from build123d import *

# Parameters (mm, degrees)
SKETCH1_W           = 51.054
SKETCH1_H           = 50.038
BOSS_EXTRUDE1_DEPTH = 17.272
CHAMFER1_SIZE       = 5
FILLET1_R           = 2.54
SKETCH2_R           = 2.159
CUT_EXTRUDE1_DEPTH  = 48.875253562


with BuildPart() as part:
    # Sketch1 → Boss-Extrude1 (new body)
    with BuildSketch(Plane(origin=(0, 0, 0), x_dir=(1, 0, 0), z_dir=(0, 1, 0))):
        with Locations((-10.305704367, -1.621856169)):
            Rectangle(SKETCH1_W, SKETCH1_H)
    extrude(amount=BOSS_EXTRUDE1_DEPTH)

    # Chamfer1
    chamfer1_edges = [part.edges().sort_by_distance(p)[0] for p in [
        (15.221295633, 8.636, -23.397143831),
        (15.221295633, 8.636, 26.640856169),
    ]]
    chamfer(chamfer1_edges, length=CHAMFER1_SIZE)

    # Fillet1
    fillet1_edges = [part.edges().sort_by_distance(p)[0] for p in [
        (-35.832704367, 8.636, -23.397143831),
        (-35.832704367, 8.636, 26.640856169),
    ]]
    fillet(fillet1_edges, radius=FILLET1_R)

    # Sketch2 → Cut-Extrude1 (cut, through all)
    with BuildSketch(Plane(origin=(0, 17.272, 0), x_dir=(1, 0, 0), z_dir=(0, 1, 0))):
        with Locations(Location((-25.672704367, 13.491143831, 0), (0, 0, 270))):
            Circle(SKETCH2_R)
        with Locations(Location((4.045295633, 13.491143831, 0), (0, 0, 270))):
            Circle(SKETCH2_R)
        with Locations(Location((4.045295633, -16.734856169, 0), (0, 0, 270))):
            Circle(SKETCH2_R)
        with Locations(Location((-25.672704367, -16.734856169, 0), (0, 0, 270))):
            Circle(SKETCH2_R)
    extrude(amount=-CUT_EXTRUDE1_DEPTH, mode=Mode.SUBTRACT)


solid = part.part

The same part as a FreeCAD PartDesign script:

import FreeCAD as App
import Part
import Sketcher

V = App.Vector
Q = App.Units.Quantity


def edges_at(feature, points):
    """Names of the edges that pass closest to the given points."""
    edges = feature.Shape.Edges
    near = lambda p: min(range(len(edges)), key=lambda i: edges[i].distToShape(Part.Vertex(*p))[0])
    return sorted({f"Edge{near(p) + 1}" for p in points})


def add_polygon(sketch, points):
    """Adds a closed chain of lines whose ends are joined by coincident constraints."""
    first, n = sketch.GeometryCount, len(points)
    for a, b in zip(points, points[1:] + points[:1]):
        sketch.addGeometry(Part.LineSegment(App.Vector(*a, 0), App.Vector(*b, 0)), False)
    for i in range(n):
        sketch.addConstraint(Sketcher.Constraint("Coincident", first + i, 2, first + (i + 1) % n, 1))

doc = App.newDocument("Part")
body = doc.addObject("PartDesign::Body", "Body")

sketch1 = body.newObject("Sketcher::SketchObject", "Sketch")
sketch1.AttachmentSupport = (doc.getObject("XZ_Plane"), [""])
sketch1.MapMode = "FlatFace"
add_polygon(sketch1, [(-36, -23), (-36, 27), (15, 27), (15, -23)])
sketch1.addConstraint([
    Sketcher.Constraint("Vertical", 0),
    Sketcher.Constraint("Horizontal", 1),
    Sketcher.Constraint("Vertical", 2),
    Sketcher.Constraint("Horizontal", 3),
    Sketcher.Constraint("DistanceX", 1, 1, 1, 2, Q("2.01 in")),
    Sketcher.Constraint("DistanceY", 0, 1, 0, 2, Q("1.97 in")),
    Sketcher.Constraint("DistanceX", 0, 2, -1, 1, Q("35.832704 mm")),
    Sketcher.Constraint("DistanceY", -1, 1, 0, 2, Q("26.640856 mm")),
])
pad1 = body.newObject("PartDesign::Pad", "Pad")
pad1.Profile = sketch1
pad1.Length = Q("0.68 in")
pad1.Reversed = True
doc.recompute()

chamfer = body.newObject("PartDesign::Chamfer", "Chamfer")
chamfer.Base = (pad1, edges_at(pad1, [(15.221, 8.636, -23.397), (15.221, 8.636, 26.641)]))
chamfer.Size = 5
doc.recompute()

fillet = body.newObject("PartDesign::Fillet", "Fillet")
fillet.Base = (chamfer, edges_at(chamfer, [(-35.833, 8.636, -23.397), (-35.833, 8.636, 26.641)]))
fillet.Radius = Q("0.1 in")

sketch2 = body.newObject("Sketcher::SketchObject", "Sketch001")
sketch2.AttachmentSupport = (doc.getObject("XZ_Plane"), [""])
sketch2.MapMode = "FlatFace"
sketch2.AttachmentOffset = App.Placement(V(0, 0, -0.68 * 25.4), App.Rotation())
sketch2.addGeometry([
    Part.Circle(V(-25.7, -13.5, 0), V(0, 0, 1), 2.2),
    Part.Circle(V(4, -13.5, 0), V(0, 0, 1), 2.2),
    Part.Circle(V(4, 16.7, 0), V(0, 0, 1), 2.2),
    Part.Circle(V(-25.7, 16.7, 0), V(0, 0, 1), 2.2),
], False)
sketch2.addConstraint([
    Sketcher.Constraint("Equal", 0, 1),
    Sketcher.Constraint("Equal", 1, 2),
    Sketcher.Constraint("Equal", 2, 3),
    Sketcher.Constraint("Horizontal", 0, 3, 1, 3),
    Sketcher.Constraint("Horizontal", 2, 3, 3, 3),
    Sketcher.Constraint("Vertical", 1, 3, 2, 3),
    Sketcher.Constraint("Vertical", 0, 3, 3, 3),
    Sketcher.Constraint("Diameter", 0, Q("0.17 in")),
    Sketcher.Constraint("DistanceX", 0, 3, 1, 3, Q("1.17 in")),
    Sketcher.Constraint("DistanceY", 1, 3, 2, 3, Q("1.19 in")),
    Sketcher.Constraint("DistanceX", 0, 3, -1, 1, Q("25.672704 mm")),
    Sketcher.Constraint("DistanceY", 0, 3, -1, 1, Q("13.491144 mm")),
])
pocket1 = body.newObject("PartDesign::Pocket", "Pocket")
pocket1.Profile = sketch2
pocket1.Type = "ThroughAll"
pocket1.Reversed = True

doc.recompute()
